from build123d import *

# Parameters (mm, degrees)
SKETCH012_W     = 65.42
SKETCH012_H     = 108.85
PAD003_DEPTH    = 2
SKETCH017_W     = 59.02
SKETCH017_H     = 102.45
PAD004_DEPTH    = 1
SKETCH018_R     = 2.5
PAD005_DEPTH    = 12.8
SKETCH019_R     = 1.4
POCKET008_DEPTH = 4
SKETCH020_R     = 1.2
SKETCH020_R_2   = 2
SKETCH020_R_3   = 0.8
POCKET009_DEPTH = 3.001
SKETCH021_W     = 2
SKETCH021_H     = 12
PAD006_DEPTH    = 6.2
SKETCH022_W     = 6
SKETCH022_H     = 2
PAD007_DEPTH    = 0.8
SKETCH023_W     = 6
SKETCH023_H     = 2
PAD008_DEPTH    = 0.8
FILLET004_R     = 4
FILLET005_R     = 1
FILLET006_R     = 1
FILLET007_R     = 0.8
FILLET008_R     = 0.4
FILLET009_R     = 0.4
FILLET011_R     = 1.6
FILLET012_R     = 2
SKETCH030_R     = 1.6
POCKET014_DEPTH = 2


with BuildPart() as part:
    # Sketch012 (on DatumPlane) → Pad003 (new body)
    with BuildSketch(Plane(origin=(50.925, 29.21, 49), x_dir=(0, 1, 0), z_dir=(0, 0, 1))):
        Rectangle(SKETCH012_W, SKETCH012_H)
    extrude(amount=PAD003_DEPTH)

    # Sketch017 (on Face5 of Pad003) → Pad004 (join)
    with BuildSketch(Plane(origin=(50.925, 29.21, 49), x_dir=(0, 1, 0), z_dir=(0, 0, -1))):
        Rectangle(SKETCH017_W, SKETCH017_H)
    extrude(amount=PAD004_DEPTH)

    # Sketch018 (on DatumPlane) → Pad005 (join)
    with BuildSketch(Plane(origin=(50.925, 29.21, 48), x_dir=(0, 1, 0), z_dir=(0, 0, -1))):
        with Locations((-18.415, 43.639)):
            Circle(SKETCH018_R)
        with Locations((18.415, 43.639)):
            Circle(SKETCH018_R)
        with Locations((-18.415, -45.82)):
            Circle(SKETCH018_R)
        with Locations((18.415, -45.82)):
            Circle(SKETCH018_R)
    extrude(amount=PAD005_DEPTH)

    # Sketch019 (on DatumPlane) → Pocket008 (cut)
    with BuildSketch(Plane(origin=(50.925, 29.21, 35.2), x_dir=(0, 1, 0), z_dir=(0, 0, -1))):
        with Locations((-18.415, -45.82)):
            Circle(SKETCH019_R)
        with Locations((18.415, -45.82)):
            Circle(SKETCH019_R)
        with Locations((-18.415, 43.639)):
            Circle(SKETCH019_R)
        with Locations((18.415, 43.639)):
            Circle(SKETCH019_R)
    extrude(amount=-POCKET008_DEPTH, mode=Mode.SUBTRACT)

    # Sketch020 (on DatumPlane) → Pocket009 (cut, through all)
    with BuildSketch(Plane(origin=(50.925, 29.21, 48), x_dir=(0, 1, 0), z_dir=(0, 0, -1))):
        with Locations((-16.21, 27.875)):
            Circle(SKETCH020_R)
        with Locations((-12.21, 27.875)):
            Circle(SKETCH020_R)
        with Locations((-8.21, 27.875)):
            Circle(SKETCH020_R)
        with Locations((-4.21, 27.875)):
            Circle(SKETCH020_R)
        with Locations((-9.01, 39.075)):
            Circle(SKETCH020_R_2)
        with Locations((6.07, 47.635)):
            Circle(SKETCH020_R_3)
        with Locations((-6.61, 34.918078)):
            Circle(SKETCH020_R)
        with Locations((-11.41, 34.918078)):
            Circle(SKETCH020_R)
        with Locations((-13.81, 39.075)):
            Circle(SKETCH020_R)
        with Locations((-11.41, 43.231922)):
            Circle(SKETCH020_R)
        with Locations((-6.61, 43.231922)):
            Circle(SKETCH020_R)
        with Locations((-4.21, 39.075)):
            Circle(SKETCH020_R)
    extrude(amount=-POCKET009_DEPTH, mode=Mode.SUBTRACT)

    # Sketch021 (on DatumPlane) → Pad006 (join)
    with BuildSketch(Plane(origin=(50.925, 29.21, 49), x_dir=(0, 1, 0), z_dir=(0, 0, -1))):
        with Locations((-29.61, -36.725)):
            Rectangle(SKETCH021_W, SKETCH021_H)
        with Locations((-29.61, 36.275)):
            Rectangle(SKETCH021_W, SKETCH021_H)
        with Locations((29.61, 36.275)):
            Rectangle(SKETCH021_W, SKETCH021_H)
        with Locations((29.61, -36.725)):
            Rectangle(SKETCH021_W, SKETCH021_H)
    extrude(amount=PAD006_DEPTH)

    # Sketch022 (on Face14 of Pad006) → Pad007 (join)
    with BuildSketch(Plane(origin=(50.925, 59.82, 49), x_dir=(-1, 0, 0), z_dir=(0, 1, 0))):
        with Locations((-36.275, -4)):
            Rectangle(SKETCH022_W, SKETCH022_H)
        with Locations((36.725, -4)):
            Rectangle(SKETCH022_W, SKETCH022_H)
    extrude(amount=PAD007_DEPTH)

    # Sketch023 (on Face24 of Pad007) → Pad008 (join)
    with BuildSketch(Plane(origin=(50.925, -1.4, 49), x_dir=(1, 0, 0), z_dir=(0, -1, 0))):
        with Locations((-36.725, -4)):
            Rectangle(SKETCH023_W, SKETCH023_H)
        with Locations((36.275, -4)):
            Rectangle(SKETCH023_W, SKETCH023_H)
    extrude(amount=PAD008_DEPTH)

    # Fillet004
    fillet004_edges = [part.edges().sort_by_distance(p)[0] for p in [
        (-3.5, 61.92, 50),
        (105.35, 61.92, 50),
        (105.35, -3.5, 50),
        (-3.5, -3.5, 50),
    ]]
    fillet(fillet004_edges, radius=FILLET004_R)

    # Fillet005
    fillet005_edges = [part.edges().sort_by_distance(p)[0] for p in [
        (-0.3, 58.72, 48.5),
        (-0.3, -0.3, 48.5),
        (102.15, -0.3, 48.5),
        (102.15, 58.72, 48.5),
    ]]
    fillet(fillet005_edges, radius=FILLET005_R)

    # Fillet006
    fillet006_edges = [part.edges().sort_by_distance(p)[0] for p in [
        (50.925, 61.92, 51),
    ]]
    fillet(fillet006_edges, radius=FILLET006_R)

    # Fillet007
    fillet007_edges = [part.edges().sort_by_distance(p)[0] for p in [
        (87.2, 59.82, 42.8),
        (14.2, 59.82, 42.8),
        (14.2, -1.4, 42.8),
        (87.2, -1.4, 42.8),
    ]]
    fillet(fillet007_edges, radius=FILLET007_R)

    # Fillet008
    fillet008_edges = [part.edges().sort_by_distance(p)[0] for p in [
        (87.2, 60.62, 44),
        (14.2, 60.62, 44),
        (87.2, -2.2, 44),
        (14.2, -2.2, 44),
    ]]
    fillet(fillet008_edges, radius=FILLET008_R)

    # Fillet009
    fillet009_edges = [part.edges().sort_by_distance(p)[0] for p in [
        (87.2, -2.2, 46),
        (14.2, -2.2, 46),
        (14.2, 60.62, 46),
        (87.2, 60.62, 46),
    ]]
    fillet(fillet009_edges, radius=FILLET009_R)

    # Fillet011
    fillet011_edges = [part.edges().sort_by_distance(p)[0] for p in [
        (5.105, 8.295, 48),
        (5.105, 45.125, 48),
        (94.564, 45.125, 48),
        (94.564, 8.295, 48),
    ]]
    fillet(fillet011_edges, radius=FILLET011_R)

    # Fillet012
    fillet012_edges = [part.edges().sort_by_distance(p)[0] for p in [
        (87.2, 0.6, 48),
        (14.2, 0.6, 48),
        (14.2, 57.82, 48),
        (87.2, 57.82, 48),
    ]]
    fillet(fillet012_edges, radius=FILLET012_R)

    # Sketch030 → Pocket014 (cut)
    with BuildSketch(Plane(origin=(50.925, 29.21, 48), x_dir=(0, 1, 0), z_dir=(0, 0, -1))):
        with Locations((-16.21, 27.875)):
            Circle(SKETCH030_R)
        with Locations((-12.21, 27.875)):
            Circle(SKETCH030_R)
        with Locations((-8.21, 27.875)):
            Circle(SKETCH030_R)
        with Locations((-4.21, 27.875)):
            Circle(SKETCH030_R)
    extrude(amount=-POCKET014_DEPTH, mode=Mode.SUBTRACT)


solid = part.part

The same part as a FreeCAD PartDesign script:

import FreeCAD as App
import Part
import Sketcher

V = App.Vector
Q = App.Units.Quantity


def edges_at(feature, points):
    """Names of the edges that pass closest to the given points."""
    edges = feature.Shape.Edges
    near = lambda p: min(range(len(edges)), key=lambda i: edges[i].distToShape(Part.Vertex(*p))[0])
    return sorted({f"Edge{near(p) + 1}" for p in points})

doc = App.newDocument("Part")
params = doc.addObject("Spreadsheet::Sheet", "Params")
for row, (alias, value) in enumerate([
    ("sketch1_width", "108.85 mm"),
    ("sketch1_height", "65.42 mm"),
    ("pad1_length", "2 mm"),
    ("sketch2_width", "102.45 mm"),
    ("sketch2_height", "59.02 mm"),
    ("pad2_length", "1 mm"),
    ("sketch3_diameter", "5 mm"),
    ("pad3_length", "12.8 mm"),
    ("sketch4_diameter", "2.8 mm"),
    ("pocket1_length", "4 mm"),
    ("sketch5_diameter", "4 mm"),
    ("sketch5_diameter2", "2.4 mm"),
    ("sketch5_diameter3", "1.6 mm"),
    ("sketch6_width", "12 mm"),
    ("sketch6_height", "2 mm"),
    ("pad4_length", "6.2 mm"),
    ("sketch7_width", "6 mm"),
    ("sketch7_height", "2 mm"),
    ("pad5_length", "0.8 mm"),
    ("sketch8_width", "6 mm"),
    ("sketch8_height", "2 mm"),
    ("pad6_length", "0.8 mm"),
    ("fillet_radius", "4 mm"),
    ("fillet2_radius", "1 mm"),
    ("fillet3_radius", "1 mm"),
    ("fillet4_radius", "0.8 mm"),
    ("fillet5_radius", "0.4 mm"),
    ("fillet6_radius", "0.4 mm"),
    ("fillet7_radius", "1.6 mm"),
    ("fillet8_radius", "2 mm"),
    ("sketch9_diameter", "3.2 mm"),
    ("pocket3_length", "2 mm"),
], start=1):
    params.set(f"A{row}", alias)
    params.set(f"B{row}", "=" + value)
    params.setAlias(f"B{row}", alias)

body = doc.addObject("PartDesign::Body", "Body")

# Sketch on XY plane
sketch1 = body.newObject("Sketcher::SketchObject", "Sketch")
sketch1.AttachmentSupport = (doc.getObject("XY_Plane"), [""])
sketch1.MapMode = "FlatFace"
sketch1.AttachmentOffset = App.Placement(V(0, 0, 49), App.Rotation())
sketch1.addGeometry([
    Part.LineSegment(V(-4, -4, 0), V(105, -4, 0)),
    Part.LineSegment(V(105, -4, 0), V(105, 62, 0)),
    Part.LineSegment(V(105, 62, 0), V(-4, 62, 0)),
    Part.LineSegment(V(-4, 62, 0), V(-4, -4, 0)),
], False)
sketch1.addConstraint([
    Sketcher.Constraint("Coincident", 0, 2, 1, 1),
    Sketcher.Constraint("Coincident", 1, 2, 2, 1),
    Sketcher.Constraint("Coincident", 2, 2, 3, 1),
    Sketcher.Constraint("Coincident", 3, 2, 0, 1),
    Sketcher.Constraint("Horizontal", 0),
    Sketcher.Constraint("Vertical", 1),
    Sketcher.Constraint("Horizontal", 2),
    Sketcher.Constraint("Vertical", 3),
    Sketcher.Constraint("DistanceX", 0, 1, 0, 2, Q("108.85 mm")),
    Sketcher.Constraint("DistanceY", 1, 1, 1, 2, Q("65.42 mm")),
    Sketcher.Constraint("DistanceY", 0, 2, -1, 1, Q("3.5 mm")),
    Sketcher.Constraint("DistanceX", 2, 2, -1, 1, Q("3.5 mm")),
])
sketch1.setExpression("Constraints[8]", "Params.sketch1_width")
sketch1.setExpression("Constraints[9]", "Params.sketch1_height")
pad1 = body.newObject("PartDesign::Pad", "Pad")
pad1.Profile = sketch1
pad1.setExpression("Length", "Params.pad1_length")

# Sketch on XY plane
sketch2 = body.newObject("Sketcher::SketchObject", "Sketch001")
sketch2.AttachmentSupport = (doc.getObject("XY_Plane"), [""])
sketch2.MapMode = "FlatFace"
sketch2.AttachmentOffset = App.Placement(V(0, 0, 49), App.Rotation())
sketch2.addGeometry([
    Part.LineSegment(V(102, 0, 0), V(0, 0, 0)),
    Part.LineSegment(V(0, 0, 0), V(0, 59, 0)),
    Part.LineSegment(V(0, 59, 0), V(102, 59, 0)),
    Part.LineSegment(V(102, 59, 0), V(102, 0, 0)),
], False)
sketch2.addConstraint([
    Sketcher.Constraint("Coincident", 0, 2, 1, 1),
    Sketcher.Constraint("Coincident", 1, 2, 2, 1),
    Sketcher.Constraint("Coincident", 2, 2, 3, 1),
    Sketcher.Constraint("Coincident", 3, 2, 0, 1),
    Sketcher.Constraint("Horizontal", 0),
    Sketcher.Constraint("Vertical", 1),
    Sketcher.Constraint("Horizontal", 2),
    Sketcher.Constraint("Vertical", 3),
    Sketcher.Constraint("DistanceX", 0, 2, 0, 1, Q("102.45 mm")),
    Sketcher.Constraint("DistanceY", 1, 1, 1, 2, Q("59.02 mm")),
    Sketcher.Constraint("DistanceX", 0, 2, -1, 1, Q("0.3 mm")),
    Sketcher.Constraint("DistanceY", 0, 2, -1, 1, Q("0.3 mm")),
])
sketch2.setExpression("Constraints[8]", "Params.sketch2_width")
sketch2.setExpression("Constraints[9]", "Params.sketch2_height")
pad2 = body.newObject("PartDesign::Pad", "Pad001")
pad2.Profile = sketch2
pad2.setExpression("Length", "Params.pad2_length")
pad2.Reversed = True

# Sketch on XY plane
sketch3 = body.newObject("Sketcher::SketchObject", "Sketch002")
sketch3.AttachmentSupport = (doc.getObject("XY_Plane"), [""])
sketch3.MapMode = "FlatFace"
sketch3.AttachmentOffset = App.Placement(V(0, 0, 48), App.Rotation())
sketch3.addGeometry([
    Part.Circle(V(94.6, 10.8, 0), V(0, 0, 1), 2.5),
    Part.Circle(V(94.6, 47.6, 0), V(0, 0, 1), 2.5),
    Part.Circle(V(5.1, 10.8, 0), V(0, 0, 1), 2.5),
    Part.Circle(V(5.1, 47.6, 0), V(0, 0, 1), 2.5),
], False)
sketch3.addConstraint([
    Sketcher.Constraint("Equal", 0, 1),
    Sketcher.Constraint("Equal", 1, 2),
    Sketcher.Constraint("Equal", 2, 3),
    Sketcher.Constraint("Horizontal", 0, 3, 2, 3),
    Sketcher.Constraint("Horizontal", 1, 3, 3, 3),
    Sketcher.Constraint("Vertical", 0, 3, 1, 3),
    Sketcher.Constraint("Vertical", 2, 3, 3, 3),
    Sketcher.Constraint("Diameter", 0, Q("5 mm")),
    Sketcher.Constraint("DistanceY", 0, 3, 1, 3, Q("36.83 mm")),
    Sketcher.Constraint("DistanceX", -1, 1, 0, 3, Q("94.564 mm")),
    Sketcher.Constraint("DistanceY", -1, 1, 0, 3, Q("10.795 mm")),
    Sketcher.Constraint("DistanceX", -1, 1, 2, 3, Q("5.105 mm")),
])
sketch3.setExpression("Constraints[7]", "Params.sketch3_diameter")
pad3 = body.newObject("PartDesign::Pad", "Pad002")
pad3.Profile = sketch3
pad3.setExpression("Length", "Params.pad3_length")
pad3.Reversed = True

# Sketch on XY plane
sketch4 = body.newObject("Sketcher::SketchObject", "Sketch003")
sketch4.AttachmentSupport = (doc.getObject("XY_Plane"), [""])
sketch4.MapMode = "FlatFace"
sketch4.AttachmentOffset = App.Placement(V(0, 0, 35.2), App.Rotation())
sketch4.addGeometry([
    Part.Circle(V(5.1, 10.8, 0), V(0, 0, 1), 1.4),
    Part.Circle(V(5.1, 47.6, 0), V(0, 0, 1), 1.4),
    Part.Circle(V(94.6, 10.8, 0), V(0, 0, 1), 1.4),
    Part.Circle(V(94.6, 47.6, 0), V(0, 0, 1), 1.4),
], False)
sketch4.addConstraint([
    Sketcher.Constraint("Equal", 0, 1),
    Sketcher.Constraint("Equal", 1, 2),
    Sketcher.Constraint("Equal", 2, 3),
    Sketcher.Constraint("Horizontal", 0, 3, 2, 3),
    Sketcher.Constraint("Horizontal", 1, 3, 3, 3),
    Sketcher.Constraint("Vertical", 0, 3, 1, 3),
    Sketcher.Constraint("Vertical", 2, 3, 3, 3),
    Sketcher.Constraint("Diameter", 0, Q("2.8 mm")),
    Sketcher.Constraint("DistanceY", 0, 3, 1, 3, Q("36.83 mm")),
    Sketcher.Constraint("DistanceX", -1, 1, 0, 3, Q("5.105 mm")),
    Sketcher.Constraint("DistanceY", -1, 1, 0, 3, Q("10.795 mm")),
    Sketcher.Constraint("DistanceX", -1, 1, 2, 3, Q("94.564 mm")),
])
sketch4.setExpression("Constraints[7]", "Params.sketch4_diameter")
pocket1 = body.newObject("PartDesign::Pocket", "Pocket")
pocket1.Profile = sketch4
pocket1.setExpression("Length", "Params.pocket1_length")
pocket1.Reversed = True

# Sketch on XY plane
sketch5 = body.newObject("Sketcher::SketchObject", "Sketch004")
sketch5.AttachmentSupport = (doc.getObject("XY_Plane"), [""])
sketch5.MapMode = "FlatFace"
sketch5.AttachmentOffset = App.Placement(V(0, 0, 48), App.Rotation())
sketch5.addGeometry([
    Part.Circle(V(78.8, 13, 0), V(0, 0, 1), 1.2),  # 0
    Part.Circle(V(78.8, 17, 0), V(0, 0, 1), 1.2),  # 1
    Part.Circle(V(78.8, 21, 0), V(0, 0, 1), 1.2),  # 2
    Part.Circle(V(78.8, 25, 0), V(0, 0, 1), 1.2),  # 3
    Part.Circle(V(90, 20.2, 0), V(0, 0, 1), 2),  # 4
    Part.Circle(V(98.6, 35.3, 0), V(0, 0, 1), 0.8),  # 5
    Part.Circle(V(85.8, 22.6, 0), V(0, 0, 1), 1.2),  # 6
    Part.Circle(V(85.8, 17.8, 0), V(0, 0, 1), 1.2),  # 7
    Part.Circle(V(90, 15.4, 0), V(0, 0, 1), 1.2),  # 8
    Part.Circle(V(94.2, 17.8, 0), V(0, 0, 1), 1.2),  # 9
    Part.Circle(V(94.2, 22.6, 0), V(0, 0, 1), 1.2),  # 10
    Part.Circle(V(90, 25, 0), V(0, 0, 1), 1.2),  # 11
], False)
sketch5.addConstraint([
    Sketcher.Constraint("Equal", 0, 1),
    Sketcher.Constraint("Equal", 1, 2),
    Sketcher.Constraint("Equal", 2, 3),
    Sketcher.Constraint("Equal", 3, 6),
    Sketcher.Constraint("Equal", 6, 7),
    Sketcher.Constraint("Equal", 7, 8),
    Sketcher.Constraint("Equal", 8, 9),
    Sketcher.Constraint("Equal", 9, 10),
    Sketcher.Constraint("Equal", 10, 11),
    Sketcher.Constraint("Horizontal", 7, 3, 9, 3),
    Sketcher.Constraint("Horizontal", 6, 3, 10, 3),
    Sketcher.Constraint("Horizontal", 3, 3, 11, 3),
    Sketcher.Constraint("Vertical", 0, 3, 1, 3),
    Sketcher.Constraint("Vertical", 1, 3, 2, 3),
    Sketcher.Constraint("Vertical", 2, 3, 3, 3),
    Sketcher.Constraint("Vertical", 6, 3, 7, 3),
    Sketcher.Constraint("Vertical", 4, 3, 8, 3),
    Sketcher.Constraint("Vertical", 9, 3, 10, 3),
    Sketcher.Constraint("Vertical", 8, 3, 11, 3),
    Sketcher.Constraint("Diameter", 4, Q("4 mm")),
    Sketcher.Constraint("Diameter", 0, Q("2.4 mm")),
    Sketcher.Constraint("Diameter", 5, Q("1.6 mm")),
    Sketcher.Constraint("DistanceY", -1, 1, 0, 3, Q("13 mm")),
    Sketcher.Constraint("DistanceY", -1, 1, 1, 3, Q("17 mm")),
    Sketcher.Constraint("DistanceY", -1, 1, 2, 3, Q("21 mm")),
    Sketcher.Constraint("DistanceY", -1, 1, 3, 3, Q("25 mm")),
    Sketcher.Constraint("DistanceX", -1, 1, 4, 3, Q("90 mm")),
    Sketcher.Constraint("DistanceX", -1, 1, 0, 3, Q("78.8 mm")),
    Sketcher.Constraint("DistanceY", -1, 1, 4, 3, Q("20.2 mm")),
    Sketcher.Constraint("DistanceY", -1, 1, 6, 3, Q("22.6 mm")),
    Sketcher.Constraint("DistanceY", -1, 1, 7, 3, Q("17.8 mm")),
    Sketcher.Constraint("DistanceY", -1, 1, 8, 3, Q("15.4 mm")),
    Sketcher.Constraint("DistanceX", -1, 1, 5, 3, Q("98.56 mm")),
    Sketcher.Constraint("DistanceY", -1, 1, 5, 3, Q("35.28 mm")),
    Sketcher.Constraint("DistanceX", -1, 1, 6, 3, Q("85.843078 mm")),
    Sketcher.Constraint("DistanceX", -1, 1, 9, 3, Q("94.156922 mm")),
])
sketch5.setExpression("Constraints[19]", "Params.sketch5_diameter")
sketch5.setExpression("Constraints[20]", "Params.sketch5_diameter2")
sketch5.setExpression("Constraints[21]", "Params.sketch5_diameter3")
pocket2 = body.newObject("PartDesign::Pocket", "Pocket001")
pocket2.Profile = sketch5
pocket2.Type = "ThroughAll"
pocket2.Reversed = True

# Sketch on XY plane
sketch6 = body.newObject("Sketcher::SketchObject", "Sketch005")
sketch6.AttachmentSupport = (doc.getObject("XY_Plane"), [""])
sketch6.MapMode = "FlatFace"
sketch6.AttachmentOffset = App.Placement(V(0, 0, 49), App.Rotation())
sketch6.addGeometry([
    Part.LineSegment(V(20.2, -1.4, 0), V(8.2, -1.4, 0)),  # 0
    Part.LineSegment(V(8.2, -1.4, 0), V(8.2, 0.6, 0)),  # 1
    Part.LineSegment(V(8.2, 0.6, 0), V(20.2, 0.6, 0)),  # 2
    Part.LineSegment(V(20.2, 0.6, 0), V(20.2, -1.4, 0)),  # 3
    Part.LineSegment(V(93.2, -1.4, 0), V(81.2, -1.4, 0)),  # 4
    Part.LineSegment(V(81.2, -1.4, 0), V(81.2, 0.6, 0)),  # 5
    Part.LineSegment(V(81.2, 0.6, 0), V(93.2, 0.6, 0)),  # 6
    Part.LineSegment(V(93.2, 0.6, 0), V(93.2, -1.4, 0)),  # 7
    Part.LineSegment(V(93.2, 57.8, 0), V(81.2, 57.8, 0)),  # 8
    Part.LineSegment(V(81.2, 57.8, 0), V(81.2, 59.8, 0)),  # 9
    Part.LineSegment(V(81.2, 59.8, 0), V(93.2, 59.8, 0)),  # 10
    Part.LineSegment(V(93.2, 59.8, 0), V(93.2, 57.8, 0)),  # 11
    Part.LineSegment(V(20.2, 57.8, 0), V(8.2, 57.8, 0)),  # 12
    Part.LineSegment(V(8.2, 57.8, 0), V(8.2, 59.8, 0)),  # 13
    Part.LineSegment(V(8.2, 59.8, 0), V(20.2, 59.8, 0)),  # 14
    Part.LineSegment(V(20.2, 59.8, 0), V(20.2, 57.8, 0)),  # 15
], False)
sketch6.addConstraint([
    Sketcher.Constraint("Coincident", 0, 2, 1, 1),
    Sketcher.Constraint("Coincident", 1, 2, 2, 1),
    Sketcher.Constraint("Coincident", 2, 2, 3, 1),
    Sketcher.Constraint("Coincident", 3, 2, 0, 1),
    Sketcher.Constraint("Coincident", 4, 2, 5, 1),
    Sketcher.Constraint("Coincident", 5, 2, 6, 1),
    Sketcher.Constraint("Coincident", 6, 2, 7, 1),
    Sketcher.Constraint("Coincident", 7, 2, 4, 1),
    Sketcher.Constraint("Coincident", 8, 2, 9, 1),
    Sketcher.Constraint("Coincident", 9, 2, 10, 1),
    Sketcher.Constraint("Coincident", 10, 2, 11, 1),
    Sketcher.Constraint("Coincident", 11, 2, 8, 1),
    Sketcher.Constraint("Coincident", 12, 2, 13, 1),
    Sketcher.Constraint("Coincident", 13, 2, 14, 1),
    Sketcher.Constraint("Coincident", 14, 2, 15, 1),
    Sketcher.Constraint("Coincident", 15, 2, 12, 1),
    Sketcher.Constraint("Horizontal", 0),
    Sketcher.Constraint("Vertical", 1),
    Sketcher.Constraint("Horizontal", 2),
    Sketcher.Constraint("Vertical", 3),
    Sketcher.Constraint("Horizontal", 4),
    Sketcher.Constraint("Vertical", 5),
    Sketcher.Constraint("Horizontal", 6),
    Sketcher.Constraint("Vertical", 7),
    Sketcher.Constraint("Horizontal", 8),
    Sketcher.Constraint("Vertical", 9),
    Sketcher.Constraint("Horizontal", 10),
    Sketcher.Constraint("Vertical", 11),
    Sketcher.Constraint("Horizontal", 12),
    Sketcher.Constraint("Vertical", 13),
    Sketcher.Constraint("Horizontal", 14),
    Sketcher.Constraint("Vertical", 15),
    Sketcher.Constraint("Horizontal", 3, 2, 4, 2),
    Sketcher.Constraint("Horizontal", 2, 2, 5, 2),
    Sketcher.Constraint("Horizontal", 11, 2, 12, 2),
    Sketcher.Constraint("Horizontal", 10, 2, 13, 2),
    Sketcher.Constraint("Vertical", 5, 2, 8, 2),
    Sketcher.Constraint("Vertical", 7, 2, 10, 2),
    Sketcher.Constraint("Vertical", 1, 2, 12, 2),
    Sketcher.Constraint("Vertical", 3, 2, 14, 2),
    Sketcher.Constraint("Equal", 2, 4),
    Sketcher.Constraint("Equal", 7, 9),
    Sketcher.Constraint("DistanceX", 0, 2, 0, 1, Q("12 mm")),
    Sketcher.Constraint("DistanceY", 1, 1, 1, 2, Q("2 mm")),
    Sketcher.Constraint("DistanceX", 3, 2, 4, 2, Q("61 mm")),
    Sketcher.Constraint("DistanceX", -1, 1, 0, 2, Q("8.2 mm")),
    Sketcher.Constraint("DistanceY", 0, 2, -1, 1, Q("1.4 mm")),
    Sketcher.Constraint("DistanceY", -1, 1, 8, 2, Q("57.82 mm")),
])
sketch6.setExpression("Constraints[42]", "Params.sketch6_width")
sketch6.setExpression("Constraints[43]", "Params.sketch6_height")
pad4 = body.newObject("PartDesign::Pad", "Pad003")
pad4.Profile = sketch6
pad4.setExpression("Length", "Params.pad4_length")
pad4.Reversed = True

# Sketch on XZ plane
sketch7 = body.newObject("Sketcher::SketchObject", "Sketch006")
sketch7.AttachmentSupport = (doc.getObject("XZ_Plane"), [""])
sketch7.MapMode = "FlatFace"
sketch7.AttachmentOffset = App.Placement(V(0, 0, -59.82), App.Rotation())
sketch7.addGeometry([
    Part.LineSegment(V(90.2, 46, 0), V(90.2, 44, 0)),  # 0
    Part.LineSegment(V(90.2, 44, 0), V(84.2, 44, 0)),  # 1
    Part.LineSegment(V(84.2, 44, 0), V(84.2, 46, 0)),  # 2
    Part.LineSegment(V(84.2, 46, 0), V(90.2, 46, 0)),  # 3
    Part.LineSegment(V(17.2, 46, 0), V(17.2, 44, 0)),  # 4
    Part.LineSegment(V(17.2, 44, 0), V(11.2, 44, 0)),  # 5
    Part.LineSegment(V(11.2, 44, 0), V(11.2, 46, 0)),  # 6
    Part.LineSegment(V(11.2, 46, 0), V(17.2, 46, 0)),  # 7
], False)
sketch7.addConstraint([
    Sketcher.Constraint("Coincident", 0, 2, 1, 1),
    Sketcher.Constraint("Coincident", 1, 2, 2, 1),
    Sketcher.Constraint("Coincident", 2, 2, 3, 1),
    Sketcher.Constraint("Coincident", 3, 2, 0, 1),
    Sketcher.Constraint("Coincident", 4, 2, 5, 1),
    Sketcher.Constraint("Coincident", 5, 2, 6, 1),
    Sketcher.Constraint("Coincident", 6, 2, 7, 1),
    Sketcher.Constraint("Coincident", 7, 2, 4, 1),
    Sketcher.Constraint("Vertical", 0),
    Sketcher.Constraint("Horizontal", 1),
    Sketcher.Constraint("Vertical", 2),
    Sketcher.Constraint("Horizontal", 3),
    Sketcher.Constraint("Vertical", 4),
    Sketcher.Constraint("Horizontal", 5),
    Sketcher.Constraint("Vertical", 6),
    Sketcher.Constraint("Horizontal", 7),
    Sketcher.Constraint("Horizontal", 1, 2, 4, 2),
    Sketcher.Constraint("Horizontal", 3, 2, 6, 2),
    Sketcher.Constraint("Equal", 3, 5),
    Sketcher.Constraint("DistanceX", 1, 2, 1, 1, Q("6 mm")),
    Sketcher.Constraint("DistanceY", 0, 2, 0, 1, Q("2 mm")),
    Sketcher.Constraint("DistanceY", -1, 1, 0, 2, Q("44 mm")),
    Sketcher.Constraint("DistanceX", 4, 2, 1, 2, Q("67 mm")),
    Sketcher.Constraint("DistanceX", -1, 1, 0, 2, Q("90.2 mm")),
])
sketch7.setExpression("Constraints[19]", "Params.sketch7_width")
sketch7.setExpression("Constraints[20]", "Params.sketch7_height")
pad5 = body.newObject("PartDesign::Pad", "Pad004")
pad5.Profile = sketch7
pad5.setExpression("Length", "Params.pad5_length")
pad5.Reversed = True

# Sketch on XZ plane
sketch8 = body.newObject("Sketcher::SketchObject", "Sketch007")
sketch8.AttachmentSupport = (doc.getObject("XZ_Plane"), [""])
sketch8.MapMode = "FlatFace"
sketch8.AttachmentOffset = App.Placement(V(0, 0, 1.4), App.Rotation())
sketch8.addGeometry([
    Part.LineSegment(V(11.2, 46, 0), V(11.2, 44, 0)),  # 0
    Part.LineSegment(V(11.2, 44, 0), V(17.2, 44, 0)),  # 1
    Part.LineSegment(V(17.2, 44, 0), V(17.2, 46, 0)),  # 2
    Part.LineSegment(V(17.2, 46, 0), V(11.2, 46, 0)),  # 3
    Part.LineSegment(V(84.2, 46, 0), V(84.2, 44, 0)),  # 4
    Part.LineSegment(V(84.2, 44, 0), V(90.2, 44, 0)),  # 5
    Part.LineSegment(V(90.2, 44, 0), V(90.2, 46, 0)),  # 6
    Part.LineSegment(V(90.2, 46, 0), V(84.2, 46, 0)),  # 7
], False)
sketch8.addConstraint([
    Sketcher.Constraint("Coincident", 0, 2, 1, 1),
    Sketcher.Constraint("Coincident", 1, 2, 2, 1),
    Sketcher.Constraint("Coincident", 2, 2, 3, 1),
    Sketcher.Constraint("Coincident", 3, 2, 0, 1),
    Sketcher.Constraint("Coincident", 4, 2, 5, 1),
    Sketcher.Constraint("Coincident", 5, 2, 6, 1),
    Sketcher.Constraint("Coincident", 6, 2, 7, 1),
    Sketcher.Constraint("Coincident", 7, 2, 4, 1),
    Sketcher.Constraint("Vertical", 0),
    Sketcher.Constraint("Horizontal", 1),
    Sketcher.Constraint("Vertical", 2),
    Sketcher.Constraint("Horizontal", 3),
    Sketcher.Constraint("Vertical", 4),
    Sketcher.Constraint("Horizontal", 5),
    Sketcher.Constraint("Vertical", 6),
    Sketcher.Constraint("Horizontal", 7),
    Sketcher.Constraint("Horizontal", 1, 2, 4, 2),
    Sketcher.Constraint("Horizontal", 3, 2, 6, 2),
    Sketcher.Constraint("Equal", 3, 5),
    Sketcher.Constraint("DistanceX", 1, 1, 1, 2, Q("6 mm")),
    Sketcher.Constraint("DistanceY", 0, 2, 0, 1, Q("2 mm")),
    Sketcher.Constraint("DistanceY", -1, 1, 0, 2, Q("44 mm")),
    Sketcher.Constraint("DistanceX", 1, 2, 4, 2, Q("67 mm")),
    Sketcher.Constraint("DistanceX", -1, 1, 0, 2, Q("11.2 mm")),
])
sketch8.setExpression("Constraints[19]", "Params.sketch8_width")
sketch8.setExpression("Constraints[20]", "Params.sketch8_height")
pad6 = body.newObject("PartDesign::Pad", "Pad005")
pad6.Profile = sketch8
pad6.setExpression("Length", "Params.pad6_length")
doc.recompute()

fillet = body.newObject("PartDesign::Fillet", "Fillet")
fillet.Base = (pad6, edges_at(pad6, [
    (-3.5, 61.92, 50),
    (105.35, 61.92, 50),
    (105.35, -3.5, 50),
    (-3.5, -3.5, 50),
]))
fillet.setExpression("Radius", "Params.fillet_radius")
doc.recompute()

fillet2 = body.newObject("PartDesign::Fillet", "Fillet001")
fillet2.Base = (fillet, edges_at(fillet, [
    (-0.3, 58.72, 48.5),
    (-0.3, -0.3, 48.5),
    (102.15, -0.3, 48.5),
    (102.15, 58.72, 48.5),
]))
fillet2.setExpression("Radius", "Params.fillet2_radius")
doc.recompute()

fillet3 = body.newObject("PartDesign::Fillet", "Fillet002")
fillet3.Base = (fillet2, edges_at(fillet2, [(50.925, 61.92, 51)]))
fillet3.setExpression("Radius", "Params.fillet3_radius")
doc.recompute()

fillet4 = body.newObject("PartDesign::Fillet", "Fillet003")
fillet4.Base = (fillet3, edges_at(fillet3, [
    (87.2, 59.82, 42.8),
    (14.2, 59.82, 42.8),
    (14.2, -1.4, 42.8),
    (87.2, -1.4, 42.8),
]))
fillet4.setExpression("Radius", "Params.fillet4_radius")
doc.recompute()

fillet5 = body.newObject("PartDesign::Fillet", "Fillet004")
fillet5.Base = (fillet4, edges_at(fillet4, [
    (87.2, 60.62, 44),
    (14.2, 60.62, 44),
    (87.2, -2.2, 44),
    (14.2, -2.2, 44),
]))
fillet5.setExpression("Radius", "Params.fillet5_radius")
doc.recompute()

fillet6 = body.newObject("PartDesign::Fillet", "Fillet005")
fillet6.Base = (fillet5, edges_at(fillet5, [
    (87.2, -2.2, 46),
    (14.2, -2.2, 46),
    (14.2, 60.62, 46),
    (87.2, 60.62, 46),
]))
fillet6.setExpression("Radius", "Params.fillet6_radius")
doc.recompute()

fillet7 = body.newObject("PartDesign::Fillet", "Fillet006")
fillet7.Base = (fillet6, edges_at(fillet6, [
    (5.105, 8.295, 48),
    (5.105, 45.125, 48),
    (94.564, 45.125, 48),
    (94.564, 8.295, 48),
]))
fillet7.setExpression("Radius", "Params.fillet7_radius")
doc.recompute()

fillet8 = body.newObject("PartDesign::Fillet", "Fillet007")
fillet8.Base = (fillet7, edges_at(fillet7, [
    (87.2, 0.6, 48),
    (14.2, 0.6, 48),
    (14.2, 57.82, 48),
    (87.2, 57.82, 48),
]))
fillet8.setExpression("Radius", "Params.fillet8_radius")

# Sketch on XY plane
sketch9 = body.newObject("Sketcher::SketchObject", "Sketch008")
sketch9.AttachmentSupport = (doc.getObject("XY_Plane"), [""])
sketch9.MapMode = "FlatFace"
sketch9.AttachmentOffset = App.Placement(V(0, 0, 48), App.Rotation())
sketch9.addGeometry([
    Part.Circle(V(78.8, 13, 0), V(0, 0, 1), 1.6),
    Part.Circle(V(78.8, 17, 0), V(0, 0, 1), 1.6),
    Part.Circle(V(78.8, 21, 0), V(0, 0, 1), 1.6),
    Part.Circle(V(78.8, 25, 0), V(0, 0, 1), 1.6),
], False)
sketch9.addConstraint([
    Sketcher.Constraint("Equal", 0, 1),
    Sketcher.Constraint("Equal", 1, 2),
    Sketcher.Constraint("Equal", 2, 3),
    Sketcher.Constraint("Vertical", 0, 3, 1, 3),
    Sketcher.Constraint("Vertical", 1, 3, 2, 3),
    Sketcher.Constraint("Vertical", 2, 3, 3, 3),
    Sketcher.Constraint("Diameter", 0, Q("3.2 mm")),
    Sketcher.Constraint("DistanceY", -1, 1, 0, 3, Q("13 mm")),
    Sketcher.Constraint("DistanceY", -1, 1, 1, 3, Q("17 mm")),
    Sketcher.Constraint("DistanceY", -1, 1, 2, 3, Q("21 mm")),
    Sketcher.Constraint("DistanceY", -1, 1, 3, 3, Q("25 mm")),
    Sketcher.Constraint("DistanceX", -1, 1, 0, 3, Q("78.8 mm")),
])
sketch9.setExpression("Constraints[6]", "Params.sketch9_diameter")
pocket3 = body.newObject("PartDesign::Pocket", "Pocket002")
pocket3.Profile = sketch9
pocket3.setExpression("Length", "Params.pocket3_length")
pocket3.Reversed = True

doc.recompute()
